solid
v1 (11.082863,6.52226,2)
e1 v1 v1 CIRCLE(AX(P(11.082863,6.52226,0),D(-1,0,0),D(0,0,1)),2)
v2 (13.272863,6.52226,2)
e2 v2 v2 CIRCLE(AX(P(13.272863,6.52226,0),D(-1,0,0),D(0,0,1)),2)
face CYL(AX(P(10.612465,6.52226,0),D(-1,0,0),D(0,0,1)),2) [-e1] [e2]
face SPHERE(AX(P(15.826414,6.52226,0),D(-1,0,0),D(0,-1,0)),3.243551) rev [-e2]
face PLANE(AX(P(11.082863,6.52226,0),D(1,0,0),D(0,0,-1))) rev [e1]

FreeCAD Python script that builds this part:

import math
import FreeCAD as App
import Part
import Sketcher

doc = App.newDocument("Part")
body = doc.addObject("PartDesign::Body", "Body")

sketch1 = doc.addObject("Sketcher::SketchObject", "Sketch")
body.addObject(sketch1)
sketch1.AttachmentSupport = (doc.XY_Plane, [""])
sketch1.MapMode = "FlatFace"
sketch1.addGeometry([
    Part.LineSegment(App.Vector(11.1, 8.5, 0), App.Vector(11.1, 6.5, 0)),
    Part.LineSegment(App.Vector(11.1, 6.5, 0), App.Vector(12.6, 6.5, 0)),
    Part.ArcOfCircle(Part.Circle(App.Vector(15.8, 6.5, 0), App.Vector(0, 0, 1), 3.2), math.radians(142), math.radians(180)),
    Part.LineSegment(App.Vector(13.3, 8.5, 0), App.Vector(11.1, 8.5, 0)),
], False)
sketch1.addGeometry(Part.LineSegment(App.Vector(11.1, 6.5, 0), App.Vector(15.8, 6.5, 0)), True)
sketch1.addConstraint([
    Sketcher.Constraint("Coincident", 0, 2, 1, 1),
    Sketcher.Constraint("Coincident", 1, 2, 2, 2),
    Sketcher.Constraint("Coincident", 2, 1, 3, 1),
    Sketcher.Constraint("Coincident", 3, 2, 0, 1),
    Sketcher.Constraint("Vertical", 0),
    Sketcher.Constraint("Horizontal", 1),
    Sketcher.Constraint("Horizontal", 3),
    Sketcher.Constraint("Horizontal", 4),
    Sketcher.Constraint("Coincident", 4, 1, 0, 2),
    Sketcher.Constraint("Coincident", 4, 2, 2, 3),
    Sketcher.Constraint("DistanceY", 0, 2, 0, 1, 2.0),
    Sketcher.Constraint("DistanceX", 1, 1, 1, 2, 1.5),
    Sketcher.Constraint("DistanceX", 3, 2, 3, 1, 2.19),
    Sketcher.Constraint("DistanceY", -1, 1, 2, 3, 6.52226),
    Sketcher.Constraint("DistanceX", -1, 1, 2, 3, 15.826414),
])
revolution = doc.addObject("PartDesign::Revolution", "Revolution")
body.addObject(revolution)
revolution.Profile = sketch1
revolution.ReferenceAxis = (sketch1, ["Axis0"])
revolution.Angle = 360

doc.recompute()
